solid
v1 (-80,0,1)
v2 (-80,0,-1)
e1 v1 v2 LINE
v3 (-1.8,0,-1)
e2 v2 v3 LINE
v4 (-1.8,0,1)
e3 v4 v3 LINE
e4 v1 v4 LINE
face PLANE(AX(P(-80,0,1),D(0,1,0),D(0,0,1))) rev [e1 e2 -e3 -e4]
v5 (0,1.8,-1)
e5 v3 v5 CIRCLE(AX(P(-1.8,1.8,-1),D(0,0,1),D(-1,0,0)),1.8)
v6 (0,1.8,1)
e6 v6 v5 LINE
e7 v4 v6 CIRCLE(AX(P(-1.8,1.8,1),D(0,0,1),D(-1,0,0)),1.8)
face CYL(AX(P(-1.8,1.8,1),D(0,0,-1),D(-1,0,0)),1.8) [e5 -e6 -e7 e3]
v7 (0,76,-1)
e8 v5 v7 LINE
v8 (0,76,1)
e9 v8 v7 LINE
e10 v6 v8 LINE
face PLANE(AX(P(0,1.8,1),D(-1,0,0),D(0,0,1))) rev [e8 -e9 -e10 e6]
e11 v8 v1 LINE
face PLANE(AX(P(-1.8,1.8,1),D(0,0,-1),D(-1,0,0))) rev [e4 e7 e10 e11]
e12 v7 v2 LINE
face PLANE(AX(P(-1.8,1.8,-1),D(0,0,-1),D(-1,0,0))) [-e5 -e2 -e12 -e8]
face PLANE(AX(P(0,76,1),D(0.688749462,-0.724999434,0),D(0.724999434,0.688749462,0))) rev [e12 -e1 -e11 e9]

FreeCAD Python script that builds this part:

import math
import FreeCAD as App
import Part
import Sketcher

V = App.Vector

doc = App.newDocument("Part")
body = doc.addObject("PartDesign::Body", "Body")

# Sketch on XY plane
sketch1 = body.newObject("Sketcher::SketchObject", "Sketch")
sketch1.AttachmentSupport = (doc.getObject("XY_Plane"), [""])
sketch1.MapMode = "FlatFace"
sketch1.addGeometry([
    Part.LineSegment(V(0, 1.8, 0), V(0, 76, 0)),
    Part.LineSegment(V(0, 76, 0), V(-80, 0, 0)),
    Part.LineSegment(V(-80, 0, 0), V(-1.8, 0, 0)),
    Part.ArcOfCircle(Part.Circle(V(-1.8, 1.8, 0), V(0, 0, 1), 1.8), math.radians(-90), math.radians(0)),
], False)
sketch1.addConstraint([
    Sketcher.Constraint("Coincident", 0, 2, 1, 1),
    Sketcher.Constraint("Coincident", 1, 2, 2, 1),
    Sketcher.Constraint("Tangent", 2, 2, 3, 1),
    Sketcher.Constraint("Tangent", 3, 2, 0, 1),
    Sketcher.Constraint("Vertical", 0),
    Sketcher.Constraint("Horizontal", 2),
    Sketcher.Constraint("PointOnObject", 0, 2, -2),
    Sketcher.Constraint("PointOnObject", 1, 2, -1),
    Sketcher.Constraint("Radius", 3, 1.8),
    Sketcher.Constraint("DistanceX", 2, 1, 2, 2, 78.2),
    Sketcher.Constraint("DistanceY", 0, 1, 0, 2, 74.2),
])
pad1 = body.newObject("PartDesign::Pad", "Pad")
pad1.Profile = sketch1
pad1.Length = 2
pad1.Midplane = True

doc.recompute()
